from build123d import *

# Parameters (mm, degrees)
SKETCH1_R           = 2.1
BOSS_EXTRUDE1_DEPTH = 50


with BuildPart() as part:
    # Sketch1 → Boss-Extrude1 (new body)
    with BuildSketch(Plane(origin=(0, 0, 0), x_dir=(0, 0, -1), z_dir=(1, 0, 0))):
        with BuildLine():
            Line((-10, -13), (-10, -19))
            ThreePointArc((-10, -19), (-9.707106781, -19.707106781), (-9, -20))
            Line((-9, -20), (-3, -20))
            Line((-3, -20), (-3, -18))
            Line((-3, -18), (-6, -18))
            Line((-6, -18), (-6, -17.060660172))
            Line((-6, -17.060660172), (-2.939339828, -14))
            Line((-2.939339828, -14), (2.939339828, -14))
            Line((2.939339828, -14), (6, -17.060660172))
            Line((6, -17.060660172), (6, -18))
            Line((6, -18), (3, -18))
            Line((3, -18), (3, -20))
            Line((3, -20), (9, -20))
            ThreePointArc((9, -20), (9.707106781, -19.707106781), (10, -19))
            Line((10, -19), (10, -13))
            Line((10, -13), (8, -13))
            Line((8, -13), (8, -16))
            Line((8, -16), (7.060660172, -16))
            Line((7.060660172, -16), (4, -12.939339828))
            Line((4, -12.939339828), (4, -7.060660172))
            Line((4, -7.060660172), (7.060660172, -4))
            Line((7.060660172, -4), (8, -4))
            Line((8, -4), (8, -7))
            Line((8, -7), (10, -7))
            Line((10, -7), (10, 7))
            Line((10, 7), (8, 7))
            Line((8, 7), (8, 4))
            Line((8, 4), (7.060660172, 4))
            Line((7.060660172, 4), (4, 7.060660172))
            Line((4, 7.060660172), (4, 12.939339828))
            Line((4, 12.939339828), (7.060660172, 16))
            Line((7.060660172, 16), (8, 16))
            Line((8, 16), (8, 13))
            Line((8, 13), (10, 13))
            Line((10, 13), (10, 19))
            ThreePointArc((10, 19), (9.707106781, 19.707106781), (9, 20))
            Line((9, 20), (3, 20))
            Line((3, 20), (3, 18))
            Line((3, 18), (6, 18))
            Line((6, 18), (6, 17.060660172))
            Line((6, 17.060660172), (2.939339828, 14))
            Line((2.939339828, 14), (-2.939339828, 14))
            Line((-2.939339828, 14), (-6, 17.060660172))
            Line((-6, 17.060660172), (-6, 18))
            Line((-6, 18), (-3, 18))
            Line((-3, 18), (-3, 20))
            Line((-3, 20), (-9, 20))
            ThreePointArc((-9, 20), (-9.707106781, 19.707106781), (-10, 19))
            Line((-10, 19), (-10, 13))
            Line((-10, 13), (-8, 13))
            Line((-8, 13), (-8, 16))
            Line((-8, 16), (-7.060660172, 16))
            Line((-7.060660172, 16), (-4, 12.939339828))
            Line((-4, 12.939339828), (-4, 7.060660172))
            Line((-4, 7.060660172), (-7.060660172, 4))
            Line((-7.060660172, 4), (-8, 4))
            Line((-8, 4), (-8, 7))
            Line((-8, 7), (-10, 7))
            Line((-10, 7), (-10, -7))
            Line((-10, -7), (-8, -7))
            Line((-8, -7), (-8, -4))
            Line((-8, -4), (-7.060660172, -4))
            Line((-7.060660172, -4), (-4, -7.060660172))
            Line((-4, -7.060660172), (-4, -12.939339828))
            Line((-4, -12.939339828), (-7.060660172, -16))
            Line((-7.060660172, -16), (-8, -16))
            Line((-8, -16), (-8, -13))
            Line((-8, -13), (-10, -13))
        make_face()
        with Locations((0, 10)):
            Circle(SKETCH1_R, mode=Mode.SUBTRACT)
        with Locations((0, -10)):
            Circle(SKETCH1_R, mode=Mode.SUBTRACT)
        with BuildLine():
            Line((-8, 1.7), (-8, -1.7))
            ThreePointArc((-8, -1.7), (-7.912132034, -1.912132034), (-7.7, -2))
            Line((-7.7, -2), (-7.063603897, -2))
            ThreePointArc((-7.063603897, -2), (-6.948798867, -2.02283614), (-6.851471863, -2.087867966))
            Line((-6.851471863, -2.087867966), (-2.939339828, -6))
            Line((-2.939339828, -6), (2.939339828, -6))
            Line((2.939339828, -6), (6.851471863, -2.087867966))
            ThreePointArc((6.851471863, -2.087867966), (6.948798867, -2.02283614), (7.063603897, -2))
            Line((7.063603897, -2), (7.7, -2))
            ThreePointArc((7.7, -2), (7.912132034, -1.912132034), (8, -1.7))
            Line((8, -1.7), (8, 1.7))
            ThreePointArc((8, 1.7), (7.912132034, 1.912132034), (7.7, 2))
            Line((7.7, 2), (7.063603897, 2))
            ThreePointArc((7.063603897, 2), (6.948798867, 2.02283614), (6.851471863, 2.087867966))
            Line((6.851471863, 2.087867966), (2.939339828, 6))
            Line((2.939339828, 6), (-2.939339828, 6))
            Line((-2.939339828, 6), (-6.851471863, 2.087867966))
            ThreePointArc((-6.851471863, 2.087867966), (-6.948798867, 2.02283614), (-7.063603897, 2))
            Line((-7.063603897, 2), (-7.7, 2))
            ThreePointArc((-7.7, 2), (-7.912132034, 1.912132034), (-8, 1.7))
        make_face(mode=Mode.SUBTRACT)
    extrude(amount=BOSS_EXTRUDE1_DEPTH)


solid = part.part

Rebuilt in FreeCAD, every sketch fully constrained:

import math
import FreeCAD as App
import Part
import Sketcher

doc = App.newDocument("Part")
body = doc.addObject("PartDesign::Body", "Body")

sketch1 = body.newObject("Sketcher::SketchObject", "Sketch")
sketch1.AttachmentSupport = (doc.getObject("YZ_Plane"), [""])
sketch1.MapMode = "FlatFace"
sketch1.addGeometry(Part.LineSegment(App.Vector(-13, 10, 0), App.Vector(-19, 10, 0)), False)
sketch1.addGeometry(Part.ArcOfCircle(Part.Circle(App.Vector(-19, 9, 0), App.Vector(0, 0, 1), 1), math.radians(90), math.radians(180)), False)
sketch1.addGeometry(Part.LineSegment(App.Vector(-20, 9, 0), App.Vector(-20, 3, 0)), False)
sketch1.addGeometry(Part.LineSegment(App.Vector(-20, 3, 0), App.Vector(-18, 3, 0)), False)
sketch1.addGeometry(Part.LineSegment(App.Vector(-18, 3, 0), App.Vector(-18, 6, 0)), False)
sketch1.addGeometry(Part.LineSegment(App.Vector(-18, 6, 0), App.Vector(-17.06, 6, 0)), False)
sketch1.addGeometry(Part.LineSegment(App.Vector(-17.06, 6, 0), App.Vector(-14, 2.94, 0)), False)
sketch1.addGeometry(Part.LineSegment(App.Vector(-14, 2.94, 0), App.Vector(-14, -2.94, 0)), False)
sketch1.addGeometry(Part.LineSegment(App.Vector(-14, -2.94, 0), App.Vector(-17.06, -6, 0)), False)
sketch1.addGeometry(Part.LineSegment(App.Vector(-17.06, -6, 0), App.Vector(-18, -6, 0)), False)
sketch1.addGeometry(Part.LineSegment(App.Vector(-18, -6, 0), App.Vector(-18, -3, 0)), False)
sketch1.addGeometry(Part.LineSegment(App.Vector(-18, -3, 0), App.Vector(-20, -3, 0)), False)
sketch1.addGeometry(Part.LineSegment(App.Vector(-20, -3, 0), App.Vector(-20, -9, 0)), False)
sketch1.addGeometry(Part.ArcOfCircle(Part.Circle(App.Vector(-19, -9, 0), App.Vector(0, 0, 1), 1), math.radians(-180), math.radians(-90)), False)
sketch1.addGeometry(Part.LineSegment(App.Vector(-19, -10, 0), App.Vector(-13, -10, 0)), False)
sketch1.addGeometry(Part.LineSegment(App.Vector(-13, -10, 0), App.Vector(-13, -8, 0)), False)
sketch1.addGeometry(Part.LineSegment(App.Vector(-13, -8, 0), App.Vector(-16, -8, 0)), False)
sketch1.addGeometry(Part.LineSegment(App.Vector(-16, -8, 0), App.Vector(-16, -7.06, 0)), False)
sketch1.addGeometry(Part.LineSegment(App.Vector(-16, -7.06, 0), App.Vector(-12.94, -4, 0)), False)
sketch1.addGeometry(Part.LineSegment(App.Vector(-12.94, -4, 0), App.Vector(-7.06, -4, 0)), False)
sketch1.addGeometry(Part.LineSegment(App.Vector(-7.06, -4, 0), App.Vector(-4, -7.06, 0)), False)
sketch1.addGeometry(Part.LineSegment(App.Vector(-4, -7.06, 0), App.Vector(-4, -8, 0)), False)
sketch1.addGeometry(Part.LineSegment(App.Vector(-4, -8, 0), App.Vector(-7, -8, 0)), False)
sketch1.addGeometry(Part.LineSegment(App.Vector(-7, -8, 0), App.Vector(-7, -10, 0)), False)
sketch1.addGeometry(Part.LineSegment(App.Vector(-7, -10, 0), App.Vector(7, -10, 0)), False)
sketch1.addGeometry(Part.LineSegment(App.Vector(7, -10, 0), App.Vector(7, -8, 0)), False)
sketch1.addGeometry(Part.LineSegment(App.Vector(7, -8, 0), App.Vector(4, -8, 0)), False)
sketch1.addGeometry(Part.LineSegment(App.Vector(4, -8, 0), App.Vector(4, -7.06, 0)), False)
sketch1.addGeometry(Part.LineSegment(App.Vector(4, -7.06, 0), App.Vector(7.06, -4, 0)), False)
sketch1.addGeometry(Part.LineSegment(App.Vector(7.06, -4, 0), App.Vector(12.94, -4, 0)), False)
sketch1.addGeometry(Part.LineSegment(App.Vector(12.94, -4, 0), App.Vector(16, -7.06, 0)), False)
sketch1.addGeometry(Part.LineSegment(App.Vector(16, -7.06, 0), App.Vector(16, -8, 0)), False)
sketch1.addGeometry(Part.LineSegment(App.Vector(16, -8, 0), App.Vector(13, -8, 0)), False)
sketch1.addGeometry(Part.LineSegment(App.Vector(13, -8, 0), App.Vector(13, -10, 0)), False)
sketch1.addGeometry(Part.LineSegment(App.Vector(13, -10, 0), App.Vector(19, -10, 0)), False)
sketch1.addGeometry(Part.ArcOfCircle(Part.Circle(App.Vector(19, -9, 0), App.Vector(0, 0, 1), 1), math.radians(-90), math.radians(0)), False)
sketch1.addGeometry(Part.LineSegment(App.Vector(20, -9, 0), App.Vector(20, -3, 0)), False)
sketch1.addGeometry(Part.LineSegment(App.Vector(20, -3, 0), App.Vector(18, -3, 0)), False)
sketch1.addGeometry(Part.LineSegment(App.Vector(18, -3, 0), App.Vector(18, -6, 0)), False)
sketch1.addGeometry(Part.LineSegment(App.Vector(18, -6, 0), App.Vector(17.06, -6, 0)), False)
sketch1.addGeometry(Part.LineSegment(App.Vector(17.06, -6, 0), App.Vector(14, -2.94, 0)), False)
sketch1.addGeometry(Part.LineSegment(App.Vector(14, -2.94, 0), App.Vector(14, 2.94, 0)), False)
sketch1.addGeometry(Part.LineSegment(App.Vector(14, 2.94, 0), App.Vector(17.06, 6, 0)), False)
sketch1.addGeometry(Part.LineSegment(App.Vector(17.06, 6, 0), App.Vector(18, 6, 0)), False)
sketch1.addGeometry(Part.LineSegment(App.Vector(18, 6, 0), App.Vector(18, 3, 0)), False)
sketch1.addGeometry(Part.LineSegment(App.Vector(18, 3, 0), App.Vector(20, 3, 0)), False)
sketch1.addGeometry(Part.LineSegment(App.Vector(20, 3, 0), App.Vector(20, 9, 0)), False)
sketch1.addGeometry(Part.ArcOfCircle(Part.Circle(App.Vector(19, 9, 0), App.Vector(0, 0, 1), 1), math.radians(0), math.radians(90)), False)
sketch1.addGeometry(Part.LineSegment(App.Vector(19, 10, 0), App.Vector(13, 10, 0)), False)
sketch1.addGeometry(Part.LineSegment(App.Vector(13, 10, 0), App.Vector(13, 8, 0)), False)
sketch1.addGeometry(Part.LineSegment(App.Vector(13, 8, 0), App.Vector(16, 8, 0)), False)
sketch1.addGeometry(Part.LineSegment(App.Vector(16, 8, 0), App.Vector(16, 7.06, 0)), False)
sketch1.addGeometry(Part.LineSegment(App.Vector(16, 7.06, 0), App.Vector(12.94, 4, 0)), False)
sketch1.addGeometry(Part.LineSegment(App.Vector(12.94, 4, 0), App.Vector(7.06, 4, 0)), False)
sketch1.addGeometry(Part.LineSegment(App.Vector(7.06, 4, 0), App.Vector(4, 7.06, 0)), False)
sketch1.addGeometry(Part.LineSegment(App.Vector(4, 7.06, 0), App.Vector(4, 8, 0)), False)
sketch1.addGeometry(Part.LineSegment(App.Vector(4, 8, 0), App.Vector(7, 8, 0)), False)
sketch1.addGeometry(Part.LineSegment(App.Vector(7, 8, 0), App.Vector(7, 10, 0)), False)
sketch1.addGeometry(Part.LineSegment(App.Vector(7, 10, 0), App.Vector(-7, 10, 0)), False)
sketch1.addGeometry(Part.LineSegment(App.Vector(-7, 10, 0), App.Vector(-7, 8, 0)), False)
sketch1.addGeometry(Part.LineSegment(App.Vector(-7, 8, 0), App.Vector(-4, 8, 0)), False)
sketch1.addGeometry(Part.LineSegment(App.Vector(-4, 8, 0), App.Vector(-4, 7.06, 0)), False)
sketch1.addGeometry(Part.LineSegment(App.Vector(-4, 7.06, 0), App.Vector(-7.06, 4, 0)), False)
sketch1.addGeometry(Part.LineSegment(App.Vector(-7.06, 4, 0), App.Vector(-12.94, 4, 0)), False)
sketch1.addGeometry(Part.LineSegment(App.Vector(-12.94, 4, 0), App.Vector(-16, 7.06, 0)), False)
sketch1.addGeometry(Part.LineSegment(App.Vector(-16, 7.06, 0), App.Vector(-16, 8, 0)), False)
sketch1.addGeometry(Part.LineSegment(App.Vector(-16, 8, 0), App.Vector(-13, 8, 0)), False)
sketch1.addGeometry(Part.LineSegment(App.Vector(-13, 8, 0), App.Vector(-13, 10, 0)), False)
sketch1.addGeometry(Part.Circle(App.Vector(-10, 0, 0), App.Vector(0, 0, 1), 2.1), False)
sketch1.addGeometry(Part.LineSegment(App.Vector(-1.7, 8, 0), App.Vector(1.7, 8, 0)), False)
sketch1.addGeometry(Part.ArcOfCircle(Part.Circle(App.Vector(1.7, 7.7, 0), App.Vector(0, 0, 1), 0.3), math.radians(0), math.radians(90)), False)
sketch1.addGeometry(Part.LineSegment(App.Vector(2, 7.7, 0), App.Vector(2, 7.06, 0)), False)
sketch1.addGeometry(Part.ArcOfCircle(Part.Circle(App.Vector(2.3, 7.06, 0), App.Vector(0, 0, 1), 0.3), math.radians(180), math.radians(225)), False)
sketch1.addGeometry(Part.LineSegment(App.Vector(2.09, 6.85, 0), App.Vector(6, 2.94, 0)), False)
sketch1.addGeometry(Part.LineSegment(App.Vector(6, 2.94, 0), App.Vector(6, -2.94, 0)), False)
sketch1.addGeometry(Part.LineSegment(App.Vector(6, -2.94, 0), App.Vector(2.09, -6.85, 0)), False)
sketch1.addGeometry(Part.ArcOfCircle(Part.Circle(App.Vector(2.3, -7.06, 0), App.Vector(0, 0, 1), 0.3), math.radians(135), math.radians(180)), False)
sketch1.addGeometry(Part.LineSegment(App.Vector(2, -7.06, 0), App.Vector(2, -7.7, 0)), False)
sketch1.addGeometry(Part.ArcOfCircle(Part.Circle(App.Vector(1.7, -7.7, 0), App.Vector(0, 0, 1), 0.3), math.radians(-90), math.radians(0)), False)
sketch1.addGeometry(Part.LineSegment(App.Vector(1.7, -8, 0), App.Vector(-1.7, -8, 0)), False)
sketch1.addGeometry(Part.ArcOfCircle(Part.Circle(App.Vector(-1.7, -7.7, 0), App.Vector(0, 0, 1), 0.3), math.radians(-180), math.radians(-90)), False)
sketch1.addGeometry(Part.LineSegment(App.Vector(-2, -7.7, 0), App.Vector(-2, -7.06, 0)), False)
sketch1.addGeometry(Part.ArcOfCircle(Part.Circle(App.Vector(-2.3, -7.06, 0), App.Vector(0, 0, 1), 0.3), math.radians(0), math.radians(45)), False)
sketch1.addGeometry(Part.LineSegment(App.Vector(-2.09, -6.85, 0), App.Vector(-6, -2.94, 0)), False)
sketch1.addGeometry(Part.LineSegment(App.Vector(-6, -2.94, 0), App.Vector(-6, 2.94, 0)), False)
sketch1.addGeometry(Part.LineSegment(App.Vector(-6, 2.94, 0), App.Vector(-2.09, 6.85, 0)), False)
sketch1.addGeometry(Part.ArcOfCircle(Part.Circle(App.Vector(-2.3, 7.06, 0), App.Vector(0, 0, 1), 0.3), math.radians(-45), math.radians(0)), False)
sketch1.addGeometry(Part.LineSegment(App.Vector(-2, 7.06, 0), App.Vector(-2, 7.7, 0)), False)
sketch1.addGeometry(Part.ArcOfCircle(Part.Circle(App.Vector(-1.7, 7.7, 0), App.Vector(0, 0, 1), 0.3), math.radians(90), math.radians(180)), False)
sketch1.addGeometry(Part.Circle(App.Vector(10, 0, 0), App.Vector(0, 0, 1), 2.1), False)
sketch1.addConstraint(Sketcher.Constraint("Tangent", 0, 2, 1, 1))
sketch1.addConstraint(Sketcher.Constraint("Tangent", 1, 2, 2, 1))
sketch1.addConstraint(Sketcher.Constraint("Coincident", 2, 2, 3, 1))
sketch1.addConstraint(Sketcher.Constraint("Coincident", 3, 2, 4, 1))
sketch1.addConstraint(Sketcher.Constraint("Coincident", 4, 2, 5, 1))
sketch1.addConstraint(Sketcher.Constraint("Coincident", 5, 2, 6, 1))
sketch1.addConstraint(Sketcher.Constraint("Coincident", 6, 2, 7, 1))
sketch1.addConstraint(Sketcher.Constraint("Coincident", 7, 2, 8, 1))
sketch1.addConstraint(Sketcher.Constraint("Coincident", 8, 2, 9, 1))
sketch1.addConstraint(Sketcher.Constraint("Coincident", 9, 2, 10, 1))
sketch1.addConstraint(Sketcher.Constraint("Coincident", 10, 2, 11, 1))
sketch1.addConstraint(Sketcher.Constraint("Coincident", 11, 2, 12, 1))
sketch1.addConstraint(Sketcher.Constraint("Tangent", 12, 2, 13, 1))
sketch1.addConstraint(Sketcher.Constraint("Tangent", 13, 2, 14, 1))
sketch1.addConstraint(Sketcher.Constraint("Coincident", 14, 2, 15, 1))
sketch1.addConstraint(Sketcher.Constraint("Coincident", 15, 2, 16, 1))
sketch1.addConstraint(Sketcher.Constraint("Coincident", 16, 2, 17, 1))
sketch1.addConstraint(Sketcher.Constraint("Coincident", 17, 2, 18, 1))
sketch1.addConstraint(Sketcher.Constraint("Coincident", 18, 2, 19, 1))
sketch1.addConstraint(Sketcher.Constraint("Coincident", 19, 2, 20, 1))
sketch1.addConstraint(Sketcher.Constraint("Coincident", 20, 2, 21, 1))
sketch1.addConstraint(Sketcher.Constraint("Coincident", 21, 2, 22, 1))
sketch1.addConstraint(Sketcher.Constraint("Coincident", 22, 2, 23, 1))
sketch1.addConstraint(Sketcher.Constraint("Coincident", 23, 2, 24, 1))
sketch1.addConstraint(Sketcher.Constraint("Coincident", 24, 2, 25, 1))
sketch1.addConstraint(Sketcher.Constraint("Coincident", 25, 2, 26, 1))
sketch1.addConstraint(Sketcher.Constraint("Coincident", 26, 2, 27, 1))
sketch1.addConstraint(Sketcher.Constraint("Coincident", 27, 2, 28, 1))
sketch1.addConstraint(Sketcher.Constraint("Coincident", 28, 2, 29, 1))
sketch1.addConstraint(Sketcher.Constraint("Coincident", 29, 2, 30, 1))
sketch1.addConstraint(Sketcher.Constraint("Coincident", 30, 2, 31, 1))
sketch1.addConstraint(Sketcher.Constraint("Coincident", 31, 2, 32, 1))
sketch1.addConstraint(Sketcher.Constraint("Coincident", 32, 2, 33, 1))
sketch1.addConstraint(Sketcher.Constraint("Coincident", 33, 2, 34, 1))
sketch1.addConstraint(Sketcher.Constraint("Tangent", 34, 2, 35, 1))
sketch1.addConstraint(Sketcher.Constraint("Tangent", 35, 2, 36, 1))
sketch1.addConstraint(Sketcher.Constraint("Coincident", 36, 2, 37, 1))
sketch1.addConstraint(Sketcher.Constraint("Coincident", 37, 2, 38, 1))
sketch1.addConstraint(Sketcher.Constraint("Coincident", 38, 2, 39, 1))
sketch1.addConstraint(Sketcher.Constraint("Coincident", 39, 2, 40, 1))
sketch1.addConstraint(Sketcher.Constraint("Coincident", 40, 2, 41, 1))
sketch1.addConstraint(Sketcher.Constraint("Coincident", 41, 2, 42, 1))
sketch1.addConstraint(Sketcher.Constraint("Coincident", 42, 2, 43, 1))
sketch1.addConstraint(Sketcher.Constraint("Coincident", 43, 2, 44, 1))
sketch1.addConstraint(Sketcher.Constraint("Coincident", 44, 2, 45, 1))
sketch1.addConstraint(Sketcher.Constraint("Coincident", 45, 2, 46, 1))
sketch1.addConstraint(Sketcher.Constraint("Tangent", 46, 2, 47, 1))
sketch1.addConstraint(Sketcher.Constraint("Tangent", 47, 2, 48, 1))
sketch1.addConstraint(Sketcher.Constraint("Coincident", 48, 2, 49, 1))
sketch1.addConstraint(Sketcher.Constraint("Coincident", 49, 2, 50, 1))
sketch1.addConstraint(Sketcher.Constraint("Coincident", 50, 2, 51, 1))
sketch1.addConstraint(Sketcher.Constraint("Coincident", 51, 2, 52, 1))
sketch1.addConstraint(Sketcher.Constraint("Coincident", 52, 2, 53, 1))
sketch1.addConstraint(Sketcher.Constraint("Coincident", 53, 2, 54, 1))
sketch1.addConstraint(Sketcher.Constraint("Coincident", 54, 2, 55, 1))
sketch1.addConstraint(Sketcher.Constraint("Coincident", 55, 2, 56, 1))
sketch1.addConstraint(Sketcher.Constraint("Coincident", 56, 2, 57, 1))
sketch1.addConstraint(Sketcher.Constraint("Coincident", 57, 2, 58, 1))
sketch1.addConstraint(Sketcher.Constraint("Coincident", 58, 2, 59, 1))
sketch1.addConstraint(Sketcher.Constraint("Coincident", 59, 2, 60, 1))
sketch1.addConstraint(Sketcher.Constraint("Coincident", 60, 2, 61, 1))
sketch1.addConstraint(Sketcher.Constraint("Coincident", 61, 2, 62, 1))
sketch1.addConstraint(Sketcher.Constraint("Coincident", 62, 2, 63, 1))
sketch1.addConstraint(Sketcher.Constraint("Coincident", 63, 2, 64, 1))
sketch1.addConstraint(Sketcher.Constraint("Coincident", 64, 2, 65, 1))
sketch1.addConstraint(Sketcher.Constraint("Coincident", 65, 2, 66, 1))
sketch1.addConstraint(Sketcher.Constraint("Coincident", 66, 2, 67, 1))
sketch1.addConstraint(Sketcher.Constraint("Coincident", 67, 2, 0, 1))
sketch1.addConstraint(Sketcher.Constraint("Tangent", 69, 2, 70, 2))
sketch1.addConstraint(Sketcher.Constraint("Tangent", 70, 1, 71, 1))
sketch1.addConstraint(Sketcher.Constraint("Tangent", 71, 2, 72, 1))
sketch1.addConstraint(Sketcher.Constraint("Tangent", 72, 2, 73, 1))
sketch1.addConstraint(Sketcher.Constraint("Coincident", 73, 2, 74, 1))
sketch1.addConstraint(Sketcher.Constraint("Coincident", 74, 2, 75, 1))
sketch1.addConstraint(Sketcher.Constraint("Tangent", 75, 2, 76, 1))
sketch1.addConstraint(Sketcher.Constraint("Tangent", 76, 2, 77, 1))
sketch1.addConstraint(Sketcher.Constraint("Tangent", 77, 2, 78, 2))
sketch1.addConstraint(Sketcher.Constraint("Tangent", 78, 1, 79, 1))
sketch1.addConstraint(Sketcher.Constraint("Tangent", 79, 2, 80, 2))
sketch1.addConstraint(Sketcher.Constraint("Tangent", 80, 1, 81, 1))
sketch1.addConstraint(Sketcher.Constraint("Tangent", 81, 2, 82, 1))
sketch1.addConstraint(Sketcher.Constraint("Tangent", 82, 2, 83, 1))
sketch1.addConstraint(Sketcher.Constraint("Coincident", 83, 2, 84, 1))
sketch1.addConstraint(Sketcher.Constraint("Coincident", 84, 2, 85, 1))
sketch1.addConstraint(Sketcher.Constraint("Tangent", 85, 2, 86, 1))
sketch1.addConstraint(Sketcher.Constraint("Tangent", 86, 2, 87, 1))
sketch1.addConstraint(Sketcher.Constraint("Tangent", 87, 2, 88, 2))
sketch1.addConstraint(Sketcher.Constraint("Tangent", 88, 1, 69, 1))
sketch1.addConstraint(Sketcher.Constraint("Horizontal", 0))
sketch1.addConstraint(Sketcher.Constraint("Vertical", 2))
sketch1.addConstraint(Sketcher.Constraint("Horizontal", 3))
sketch1.addConstraint(Sketcher.Constraint("Vertical", 4))
sketch1.addConstraint(Sketcher.Constraint("Horizontal", 5))
sketch1.addConstraint(Sketcher.Constraint("Vertical", 7))
sketch1.addConstraint(Sketcher.Constraint("Horizontal", 9))
sketch1.addConstraint(Sketcher.Constraint("Vertical", 10))
sketch1.addConstraint(Sketcher.Constraint("Horizontal", 11))
sketch1.addConstraint(Sketcher.Constraint("Vertical", 12))
sketch1.addConstraint(Sketcher.Constraint("Horizontal", 14))
sketch1.addConstraint(Sketcher.Constraint("Vertical", 15))
sketch1.addConstraint(Sketcher.Constraint("Horizontal", 16))
sketch1.addConstraint(Sketcher.Constraint("Vertical", 17))
sketch1.addConstraint(Sketcher.Constraint("Horizontal", 19))
sketch1.addConstraint(Sketcher.Constraint("Vertical", 21))
sketch1.addConstraint(Sketcher.Constraint("Horizontal", 22))
sketch1.addConstraint(Sketcher.Constraint("Vertical", 23))
sketch1.addConstraint(Sketcher.Constraint("Horizontal", 24))
sketch1.addConstraint(Sketcher.Constraint("Vertical", 25))
sketch1.addConstraint(Sketcher.Constraint("Horizontal", 26))
sketch1.addConstraint(Sketcher.Constraint("Vertical", 27))
sketch1.addConstraint(Sketcher.Constraint("Horizontal", 29))
sketch1.addConstraint(Sketcher.Constraint("Vertical", 31))
sketch1.addConstraint(Sketcher.Constraint("Horizontal", 32))
sketch1.addConstraint(Sketcher.Constraint("Vertical", 33))
sketch1.addConstraint(Sketcher.Constraint("Horizontal", 34))
sketch1.addConstraint(Sketcher.Constraint("Vertical", 36))
sketch1.addConstraint(Sketcher.Constraint("Horizontal", 37))
sketch1.addConstraint(Sketcher.Constraint("Vertical", 38))
sketch1.addConstraint(Sketcher.Constraint("Horizontal", 39))
sketch1.addConstraint(Sketcher.Constraint("Vertical", 41))
sketch1.addConstraint(Sketcher.Constraint("Horizontal", 43))
sketch1.addConstraint(Sketcher.Constraint("Vertical", 44))
sketch1.addConstraint(Sketcher.Constraint("Horizontal", 45))
sketch1.addConstraint(Sketcher.Constraint("Vertical", 46))
sketch1.addConstraint(Sketcher.Constraint("Horizontal", 48))
sketch1.addConstraint(Sketcher.Constraint("Vertical", 49))
sketch1.addConstraint(Sketcher.Constraint("Horizontal", 50))
sketch1.addConstraint(Sketcher.Constraint("Vertical", 51))
sketch1.addConstraint(Sketcher.Constraint("Horizontal", 53))
sketch1.addConstraint(Sketcher.Constraint("Vertical", 55))
sketch1.addConstraint(Sketcher.Constraint("Horizontal", 56))
sketch1.addConstraint(Sketcher.Constraint("Vertical", 57))
sketch1.addConstraint(Sketcher.Constraint("Horizontal", 58))
sketch1.addConstraint(Sketcher.Constraint("Vertical", 59))
sketch1.addConstraint(Sketcher.Constraint("Horizontal", 60))
sketch1.addConstraint(Sketcher.Constraint("Vertical", 61))
sketch1.addConstraint(Sketcher.Constraint("Horizontal", 63))
sketch1.addConstraint(Sketcher.Constraint("Vertical", 65))
sketch1.addConstraint(Sketcher.Constraint("Horizontal", 66))
sketch1.addConstraint(Sketcher.Constraint("Vertical", 67))
sketch1.addConstraint(Sketcher.Constraint("Horizontal", 69))
sketch1.addConstraint(Sketcher.Constraint("Vertical", 71))
sketch1.addConstraint(Sketcher.Constraint("Vertical", 74))
sketch1.addConstraint(Sketcher.Constraint("Vertical", 77))
sketch1.addConstraint(Sketcher.Constraint("Horizontal", 79))
sketch1.addConstraint(Sketcher.Constraint("Vertical", 81))
sketch1.addConstraint(Sketcher.Constraint("Vertical", 84))
sketch1.addConstraint(Sketcher.Constraint("Vertical", 87))
sketch1.addConstraint(Sketcher.Constraint("Equal", 1, 13))
sketch1.addConstraint(Sketcher.Constraint("Equal", 13, 35))
sketch1.addConstraint(Sketcher.Constraint("Equal", 35, 47))
sketch1.addConstraint(Sketcher.Constraint("Equal", 70, 72))
sketch1.addConstraint(Sketcher.Constraint("Equal", 72, 76))
sketch1.addConstraint(Sketcher.Constraint("Equal", 76, 78))
sketch1.addConstraint(Sketcher.Constraint("Equal", 78, 80))
sketch1.addConstraint(Sketcher.Constraint("Equal", 80, 82))
sketch1.addConstraint(Sketcher.Constraint("Equal", 82, 86))
sketch1.addConstraint(Sketcher.Constraint("Equal", 86, 88))
sketch1.addConstraint(Sketcher.Constraint("Equal", 68, 89))
sketch1.addConstraint(Sketcher.Constraint("Symmetric", 1, 3, 35, 3, -1, 1))
sketch1.addConstraint(Sketcher.Constraint("Symmetric", 13, 3, 47, 3, -1, 1))
sketch1.addConstraint(Sketcher.Constraint("Symmetric", 70, 3, 80, 3, -1, 1))
sketch1.addConstraint(Sketcher.Constraint("Symmetric", 76, 3, 86, 3, -1, 1))
sketch1.addConstraint(Sketcher.Constraint("Symmetric", 68, 3, 89, 3, -1, 1))
sketch1.addConstraint(Sketcher.Constraint("Symmetric", 3, 2, 37, 2, -1, 1))
sketch1.addConstraint(Sketcher.Constraint("Symmetric", 5, 2, 39, 2, -1, 1))
sketch1.addConstraint(Sketcher.Constraint("Symmetric", 6, 2, 40, 2, -1, 1))
sketch1.addConstraint(Sketcher.Constraint("Symmetric", 8, 2, 42, 2, -1, 1))
sketch1.addConstraint(Sketcher.Constraint("Symmetric", 10, 2, 44, 2, -1, 1))
sketch1.addConstraint(Sketcher.Constraint("Symmetric", 15, 2, 49, 2, -1, 1))
sketch1.addConstraint(Sketcher.Constraint("Symmetric", 17, 2, 51, 2, -1, 1))
sketch1.addConstraint(Sketcher.Constraint("Symmetric", 18, 2, 52, 2, -1, 1))
sketch1.addConstraint(Sketcher.Constraint("Symmetric", 20, 2, 54, 2, -1, 1))
sketch1.addConstraint(Sketcher.Constraint("Symmetric", 22, 2, 56, 2, -1, 1))
sketch1.addConstraint(Sketcher.Constraint("Symmetric", 24, 2, 58, 2, -1, 1))
sketch1.addConstraint(Sketcher.Constraint("Symmetric", 26, 2, 60, 2, -1, 1))
sketch1.addConstraint(Sketcher.Constraint("Symmetric", 28, 2, 62, 2, -1, 1))
sketch1.addConstraint(Sketcher.Constraint("Symmetric", 30, 2, 64, 2, -1, 1))
sketch1.addConstraint(Sketcher.Constraint("Symmetric", 32, 2, 66, 2, -1, 1))
sketch1.addConstraint(Sketcher.Constraint("Symmetric", 72, 2, 82, 2, -1, 1))
sketch1.addConstraint(Sketcher.Constraint("Symmetric", 74, 2, 84, 2, -1, 1))
sketch1.addConstraint(Sketcher.Constraint("Symmetric", 13, 3, 35, 3, -2))
sketch1.addConstraint(Sketcher.Constraint("Symmetric", 76, 3, 82, 3, -2))
sketch1.addConstraint(Sketcher.Constraint("Symmetric", 22, 2, 25, 2, -2))
sketch1.addConstraint(Sketcher.Constraint("Symmetric", 20, 2, 27, 2, -2))
sketch1.addConstraint(Sketcher.Constraint("Symmetric", 19, 2, 28, 2, -2))
sketch1.addConstraint(Sketcher.Constraint("Symmetric", 17, 2, 30, 2, -2))
sketch1.addConstraint(Sketcher.Constraint("Symmetric", 15, 2, 32, 2, -2))
sketch1.addConstraint(Sketcher.Constraint("Symmetric", 10, 2, 37, 2, -2))
sketch1.addConstraint(Sketcher.Constraint("Symmetric", 8, 2, 39, 2, -2))
sketch1.addConstraint(Sketcher.Constraint("PointOnObject", 68, 3, -1))
sketch1.addConstraint(Sketcher.Constraint("Perpendicular", 6, 8))
sketch1.addConstraint(Sketcher.Constraint("Parallel", 8, 18))
sketch1.addConstraint(Sketcher.Constraint("Perpendicular", 18, 20))
sketch1.addConstraint(Sketcher.Constraint("Perpendicular", 20, 28))
sketch1.addConstraint(Sketcher.Constraint("Perpendicular", 28, 30))
sketch1.addConstraint(Sketcher.Constraint("Perpendicular", 40, 42))
sketch1.addConstraint(Sketcher.Constraint("Perpendicular", 52, 54))
sketch1.addConstraint(Sketcher.Constraint("Perpendicular", 54, 62))
sketch1.addConstraint(Sketcher.Constraint("Perpendicular", 62, 64))
sketch1.addConstraint(Sketcher.Constraint("Parallel", 64, 73))
sketch1.addConstraint(Sketcher.Constraint("Perpendicular", 73, 75))
sketch1.addConstraint(Sketcher.Constraint("Horizontal", 17, 2, 20, 2))
sketch1.addConstraint(Sketcher.Constraint("Horizontal", 16, 2, 21, 2))
sketch1.addConstraint(Sketcher.Constraint("Horizontal", 14, 2, 23, 2))
sketch1.addConstraint(Sketcher.Constraint("Horizontal", 66, 2, 69, 2))
sketch1.addConstraint(Sketcher.Constraint("Horizontal", 41, 2, 73, 2))
sketch1.addConstraint(Sketcher.Constraint("Equal", 16, 22))
sketch1.addConstraint(Sketcher.Constraint("Equal", 48, 2))
sketch1.addConstraint(Sketcher.Constraint("Equal", 66, 4))
sketch1.addConstraint(Sketcher.Constraint("Equal", 63, 7))
sketch1.addConstraint(Sketcher.Constraint("Equal", 45, 15))
sketch1.addConstraint(Sketcher.Constraint("Equal", 43, 17))
sketch1.addConstraint(Sketcher.Constraint("Equal", 8, 18))
sketch1.addConstraint(Sketcher.Constraint("Radius", 1, 1.0))
sketch1.addConstraint(Sketcher.Constraint("Diameter", 68, 4.2))
sketch1.addConstraint(Sketcher.Constraint("Radius", 70, 0.3))
sketch1.addConstraint(Sketcher.Constraint("DistanceX", 0, 2, 0, 1, 6.0))
sketch1.addConstraint(Sketcher.Constraint("DistanceX", 3, 1, 3, 2, 2.0))
sketch1.addConstraint(Sketcher.Constraint("DistanceX", 16, 2, 16, 1, 3.0))
sketch1.addConstraint(Sketcher.Constraint("DistanceX", 24, 1, 24, 2, 14.0))
sketch1.addConstraint(Sketcher.Constraint("DistanceX", 69, 1, 69, 2, 3.4))
sketch1.addConstraint(Sketcher.Constraint("DistanceX", 1, 3, -1, 1, 19.0))
sketch1.addConstraint(Sketcher.Constraint("DistanceX", 68, 3, -1, 1, 10.0))
sketch1.addConstraint(Sketcher.Constraint("DistanceX", 6, 2, -1, 1, 14.0))
sketch1.addConstraint(Sketcher.Constraint("DistanceX", -1, 1, 73, 2, 6.0))
sketch1.addConstraint(Sketcher.Constraint("DistanceX", 5, 1, 5, 2, 0.93934))
pad1 = body.newObject("PartDesign::Pad", "Pad")
pad1.Profile = sketch1
pad1.Length = 50

doc.recompute()
